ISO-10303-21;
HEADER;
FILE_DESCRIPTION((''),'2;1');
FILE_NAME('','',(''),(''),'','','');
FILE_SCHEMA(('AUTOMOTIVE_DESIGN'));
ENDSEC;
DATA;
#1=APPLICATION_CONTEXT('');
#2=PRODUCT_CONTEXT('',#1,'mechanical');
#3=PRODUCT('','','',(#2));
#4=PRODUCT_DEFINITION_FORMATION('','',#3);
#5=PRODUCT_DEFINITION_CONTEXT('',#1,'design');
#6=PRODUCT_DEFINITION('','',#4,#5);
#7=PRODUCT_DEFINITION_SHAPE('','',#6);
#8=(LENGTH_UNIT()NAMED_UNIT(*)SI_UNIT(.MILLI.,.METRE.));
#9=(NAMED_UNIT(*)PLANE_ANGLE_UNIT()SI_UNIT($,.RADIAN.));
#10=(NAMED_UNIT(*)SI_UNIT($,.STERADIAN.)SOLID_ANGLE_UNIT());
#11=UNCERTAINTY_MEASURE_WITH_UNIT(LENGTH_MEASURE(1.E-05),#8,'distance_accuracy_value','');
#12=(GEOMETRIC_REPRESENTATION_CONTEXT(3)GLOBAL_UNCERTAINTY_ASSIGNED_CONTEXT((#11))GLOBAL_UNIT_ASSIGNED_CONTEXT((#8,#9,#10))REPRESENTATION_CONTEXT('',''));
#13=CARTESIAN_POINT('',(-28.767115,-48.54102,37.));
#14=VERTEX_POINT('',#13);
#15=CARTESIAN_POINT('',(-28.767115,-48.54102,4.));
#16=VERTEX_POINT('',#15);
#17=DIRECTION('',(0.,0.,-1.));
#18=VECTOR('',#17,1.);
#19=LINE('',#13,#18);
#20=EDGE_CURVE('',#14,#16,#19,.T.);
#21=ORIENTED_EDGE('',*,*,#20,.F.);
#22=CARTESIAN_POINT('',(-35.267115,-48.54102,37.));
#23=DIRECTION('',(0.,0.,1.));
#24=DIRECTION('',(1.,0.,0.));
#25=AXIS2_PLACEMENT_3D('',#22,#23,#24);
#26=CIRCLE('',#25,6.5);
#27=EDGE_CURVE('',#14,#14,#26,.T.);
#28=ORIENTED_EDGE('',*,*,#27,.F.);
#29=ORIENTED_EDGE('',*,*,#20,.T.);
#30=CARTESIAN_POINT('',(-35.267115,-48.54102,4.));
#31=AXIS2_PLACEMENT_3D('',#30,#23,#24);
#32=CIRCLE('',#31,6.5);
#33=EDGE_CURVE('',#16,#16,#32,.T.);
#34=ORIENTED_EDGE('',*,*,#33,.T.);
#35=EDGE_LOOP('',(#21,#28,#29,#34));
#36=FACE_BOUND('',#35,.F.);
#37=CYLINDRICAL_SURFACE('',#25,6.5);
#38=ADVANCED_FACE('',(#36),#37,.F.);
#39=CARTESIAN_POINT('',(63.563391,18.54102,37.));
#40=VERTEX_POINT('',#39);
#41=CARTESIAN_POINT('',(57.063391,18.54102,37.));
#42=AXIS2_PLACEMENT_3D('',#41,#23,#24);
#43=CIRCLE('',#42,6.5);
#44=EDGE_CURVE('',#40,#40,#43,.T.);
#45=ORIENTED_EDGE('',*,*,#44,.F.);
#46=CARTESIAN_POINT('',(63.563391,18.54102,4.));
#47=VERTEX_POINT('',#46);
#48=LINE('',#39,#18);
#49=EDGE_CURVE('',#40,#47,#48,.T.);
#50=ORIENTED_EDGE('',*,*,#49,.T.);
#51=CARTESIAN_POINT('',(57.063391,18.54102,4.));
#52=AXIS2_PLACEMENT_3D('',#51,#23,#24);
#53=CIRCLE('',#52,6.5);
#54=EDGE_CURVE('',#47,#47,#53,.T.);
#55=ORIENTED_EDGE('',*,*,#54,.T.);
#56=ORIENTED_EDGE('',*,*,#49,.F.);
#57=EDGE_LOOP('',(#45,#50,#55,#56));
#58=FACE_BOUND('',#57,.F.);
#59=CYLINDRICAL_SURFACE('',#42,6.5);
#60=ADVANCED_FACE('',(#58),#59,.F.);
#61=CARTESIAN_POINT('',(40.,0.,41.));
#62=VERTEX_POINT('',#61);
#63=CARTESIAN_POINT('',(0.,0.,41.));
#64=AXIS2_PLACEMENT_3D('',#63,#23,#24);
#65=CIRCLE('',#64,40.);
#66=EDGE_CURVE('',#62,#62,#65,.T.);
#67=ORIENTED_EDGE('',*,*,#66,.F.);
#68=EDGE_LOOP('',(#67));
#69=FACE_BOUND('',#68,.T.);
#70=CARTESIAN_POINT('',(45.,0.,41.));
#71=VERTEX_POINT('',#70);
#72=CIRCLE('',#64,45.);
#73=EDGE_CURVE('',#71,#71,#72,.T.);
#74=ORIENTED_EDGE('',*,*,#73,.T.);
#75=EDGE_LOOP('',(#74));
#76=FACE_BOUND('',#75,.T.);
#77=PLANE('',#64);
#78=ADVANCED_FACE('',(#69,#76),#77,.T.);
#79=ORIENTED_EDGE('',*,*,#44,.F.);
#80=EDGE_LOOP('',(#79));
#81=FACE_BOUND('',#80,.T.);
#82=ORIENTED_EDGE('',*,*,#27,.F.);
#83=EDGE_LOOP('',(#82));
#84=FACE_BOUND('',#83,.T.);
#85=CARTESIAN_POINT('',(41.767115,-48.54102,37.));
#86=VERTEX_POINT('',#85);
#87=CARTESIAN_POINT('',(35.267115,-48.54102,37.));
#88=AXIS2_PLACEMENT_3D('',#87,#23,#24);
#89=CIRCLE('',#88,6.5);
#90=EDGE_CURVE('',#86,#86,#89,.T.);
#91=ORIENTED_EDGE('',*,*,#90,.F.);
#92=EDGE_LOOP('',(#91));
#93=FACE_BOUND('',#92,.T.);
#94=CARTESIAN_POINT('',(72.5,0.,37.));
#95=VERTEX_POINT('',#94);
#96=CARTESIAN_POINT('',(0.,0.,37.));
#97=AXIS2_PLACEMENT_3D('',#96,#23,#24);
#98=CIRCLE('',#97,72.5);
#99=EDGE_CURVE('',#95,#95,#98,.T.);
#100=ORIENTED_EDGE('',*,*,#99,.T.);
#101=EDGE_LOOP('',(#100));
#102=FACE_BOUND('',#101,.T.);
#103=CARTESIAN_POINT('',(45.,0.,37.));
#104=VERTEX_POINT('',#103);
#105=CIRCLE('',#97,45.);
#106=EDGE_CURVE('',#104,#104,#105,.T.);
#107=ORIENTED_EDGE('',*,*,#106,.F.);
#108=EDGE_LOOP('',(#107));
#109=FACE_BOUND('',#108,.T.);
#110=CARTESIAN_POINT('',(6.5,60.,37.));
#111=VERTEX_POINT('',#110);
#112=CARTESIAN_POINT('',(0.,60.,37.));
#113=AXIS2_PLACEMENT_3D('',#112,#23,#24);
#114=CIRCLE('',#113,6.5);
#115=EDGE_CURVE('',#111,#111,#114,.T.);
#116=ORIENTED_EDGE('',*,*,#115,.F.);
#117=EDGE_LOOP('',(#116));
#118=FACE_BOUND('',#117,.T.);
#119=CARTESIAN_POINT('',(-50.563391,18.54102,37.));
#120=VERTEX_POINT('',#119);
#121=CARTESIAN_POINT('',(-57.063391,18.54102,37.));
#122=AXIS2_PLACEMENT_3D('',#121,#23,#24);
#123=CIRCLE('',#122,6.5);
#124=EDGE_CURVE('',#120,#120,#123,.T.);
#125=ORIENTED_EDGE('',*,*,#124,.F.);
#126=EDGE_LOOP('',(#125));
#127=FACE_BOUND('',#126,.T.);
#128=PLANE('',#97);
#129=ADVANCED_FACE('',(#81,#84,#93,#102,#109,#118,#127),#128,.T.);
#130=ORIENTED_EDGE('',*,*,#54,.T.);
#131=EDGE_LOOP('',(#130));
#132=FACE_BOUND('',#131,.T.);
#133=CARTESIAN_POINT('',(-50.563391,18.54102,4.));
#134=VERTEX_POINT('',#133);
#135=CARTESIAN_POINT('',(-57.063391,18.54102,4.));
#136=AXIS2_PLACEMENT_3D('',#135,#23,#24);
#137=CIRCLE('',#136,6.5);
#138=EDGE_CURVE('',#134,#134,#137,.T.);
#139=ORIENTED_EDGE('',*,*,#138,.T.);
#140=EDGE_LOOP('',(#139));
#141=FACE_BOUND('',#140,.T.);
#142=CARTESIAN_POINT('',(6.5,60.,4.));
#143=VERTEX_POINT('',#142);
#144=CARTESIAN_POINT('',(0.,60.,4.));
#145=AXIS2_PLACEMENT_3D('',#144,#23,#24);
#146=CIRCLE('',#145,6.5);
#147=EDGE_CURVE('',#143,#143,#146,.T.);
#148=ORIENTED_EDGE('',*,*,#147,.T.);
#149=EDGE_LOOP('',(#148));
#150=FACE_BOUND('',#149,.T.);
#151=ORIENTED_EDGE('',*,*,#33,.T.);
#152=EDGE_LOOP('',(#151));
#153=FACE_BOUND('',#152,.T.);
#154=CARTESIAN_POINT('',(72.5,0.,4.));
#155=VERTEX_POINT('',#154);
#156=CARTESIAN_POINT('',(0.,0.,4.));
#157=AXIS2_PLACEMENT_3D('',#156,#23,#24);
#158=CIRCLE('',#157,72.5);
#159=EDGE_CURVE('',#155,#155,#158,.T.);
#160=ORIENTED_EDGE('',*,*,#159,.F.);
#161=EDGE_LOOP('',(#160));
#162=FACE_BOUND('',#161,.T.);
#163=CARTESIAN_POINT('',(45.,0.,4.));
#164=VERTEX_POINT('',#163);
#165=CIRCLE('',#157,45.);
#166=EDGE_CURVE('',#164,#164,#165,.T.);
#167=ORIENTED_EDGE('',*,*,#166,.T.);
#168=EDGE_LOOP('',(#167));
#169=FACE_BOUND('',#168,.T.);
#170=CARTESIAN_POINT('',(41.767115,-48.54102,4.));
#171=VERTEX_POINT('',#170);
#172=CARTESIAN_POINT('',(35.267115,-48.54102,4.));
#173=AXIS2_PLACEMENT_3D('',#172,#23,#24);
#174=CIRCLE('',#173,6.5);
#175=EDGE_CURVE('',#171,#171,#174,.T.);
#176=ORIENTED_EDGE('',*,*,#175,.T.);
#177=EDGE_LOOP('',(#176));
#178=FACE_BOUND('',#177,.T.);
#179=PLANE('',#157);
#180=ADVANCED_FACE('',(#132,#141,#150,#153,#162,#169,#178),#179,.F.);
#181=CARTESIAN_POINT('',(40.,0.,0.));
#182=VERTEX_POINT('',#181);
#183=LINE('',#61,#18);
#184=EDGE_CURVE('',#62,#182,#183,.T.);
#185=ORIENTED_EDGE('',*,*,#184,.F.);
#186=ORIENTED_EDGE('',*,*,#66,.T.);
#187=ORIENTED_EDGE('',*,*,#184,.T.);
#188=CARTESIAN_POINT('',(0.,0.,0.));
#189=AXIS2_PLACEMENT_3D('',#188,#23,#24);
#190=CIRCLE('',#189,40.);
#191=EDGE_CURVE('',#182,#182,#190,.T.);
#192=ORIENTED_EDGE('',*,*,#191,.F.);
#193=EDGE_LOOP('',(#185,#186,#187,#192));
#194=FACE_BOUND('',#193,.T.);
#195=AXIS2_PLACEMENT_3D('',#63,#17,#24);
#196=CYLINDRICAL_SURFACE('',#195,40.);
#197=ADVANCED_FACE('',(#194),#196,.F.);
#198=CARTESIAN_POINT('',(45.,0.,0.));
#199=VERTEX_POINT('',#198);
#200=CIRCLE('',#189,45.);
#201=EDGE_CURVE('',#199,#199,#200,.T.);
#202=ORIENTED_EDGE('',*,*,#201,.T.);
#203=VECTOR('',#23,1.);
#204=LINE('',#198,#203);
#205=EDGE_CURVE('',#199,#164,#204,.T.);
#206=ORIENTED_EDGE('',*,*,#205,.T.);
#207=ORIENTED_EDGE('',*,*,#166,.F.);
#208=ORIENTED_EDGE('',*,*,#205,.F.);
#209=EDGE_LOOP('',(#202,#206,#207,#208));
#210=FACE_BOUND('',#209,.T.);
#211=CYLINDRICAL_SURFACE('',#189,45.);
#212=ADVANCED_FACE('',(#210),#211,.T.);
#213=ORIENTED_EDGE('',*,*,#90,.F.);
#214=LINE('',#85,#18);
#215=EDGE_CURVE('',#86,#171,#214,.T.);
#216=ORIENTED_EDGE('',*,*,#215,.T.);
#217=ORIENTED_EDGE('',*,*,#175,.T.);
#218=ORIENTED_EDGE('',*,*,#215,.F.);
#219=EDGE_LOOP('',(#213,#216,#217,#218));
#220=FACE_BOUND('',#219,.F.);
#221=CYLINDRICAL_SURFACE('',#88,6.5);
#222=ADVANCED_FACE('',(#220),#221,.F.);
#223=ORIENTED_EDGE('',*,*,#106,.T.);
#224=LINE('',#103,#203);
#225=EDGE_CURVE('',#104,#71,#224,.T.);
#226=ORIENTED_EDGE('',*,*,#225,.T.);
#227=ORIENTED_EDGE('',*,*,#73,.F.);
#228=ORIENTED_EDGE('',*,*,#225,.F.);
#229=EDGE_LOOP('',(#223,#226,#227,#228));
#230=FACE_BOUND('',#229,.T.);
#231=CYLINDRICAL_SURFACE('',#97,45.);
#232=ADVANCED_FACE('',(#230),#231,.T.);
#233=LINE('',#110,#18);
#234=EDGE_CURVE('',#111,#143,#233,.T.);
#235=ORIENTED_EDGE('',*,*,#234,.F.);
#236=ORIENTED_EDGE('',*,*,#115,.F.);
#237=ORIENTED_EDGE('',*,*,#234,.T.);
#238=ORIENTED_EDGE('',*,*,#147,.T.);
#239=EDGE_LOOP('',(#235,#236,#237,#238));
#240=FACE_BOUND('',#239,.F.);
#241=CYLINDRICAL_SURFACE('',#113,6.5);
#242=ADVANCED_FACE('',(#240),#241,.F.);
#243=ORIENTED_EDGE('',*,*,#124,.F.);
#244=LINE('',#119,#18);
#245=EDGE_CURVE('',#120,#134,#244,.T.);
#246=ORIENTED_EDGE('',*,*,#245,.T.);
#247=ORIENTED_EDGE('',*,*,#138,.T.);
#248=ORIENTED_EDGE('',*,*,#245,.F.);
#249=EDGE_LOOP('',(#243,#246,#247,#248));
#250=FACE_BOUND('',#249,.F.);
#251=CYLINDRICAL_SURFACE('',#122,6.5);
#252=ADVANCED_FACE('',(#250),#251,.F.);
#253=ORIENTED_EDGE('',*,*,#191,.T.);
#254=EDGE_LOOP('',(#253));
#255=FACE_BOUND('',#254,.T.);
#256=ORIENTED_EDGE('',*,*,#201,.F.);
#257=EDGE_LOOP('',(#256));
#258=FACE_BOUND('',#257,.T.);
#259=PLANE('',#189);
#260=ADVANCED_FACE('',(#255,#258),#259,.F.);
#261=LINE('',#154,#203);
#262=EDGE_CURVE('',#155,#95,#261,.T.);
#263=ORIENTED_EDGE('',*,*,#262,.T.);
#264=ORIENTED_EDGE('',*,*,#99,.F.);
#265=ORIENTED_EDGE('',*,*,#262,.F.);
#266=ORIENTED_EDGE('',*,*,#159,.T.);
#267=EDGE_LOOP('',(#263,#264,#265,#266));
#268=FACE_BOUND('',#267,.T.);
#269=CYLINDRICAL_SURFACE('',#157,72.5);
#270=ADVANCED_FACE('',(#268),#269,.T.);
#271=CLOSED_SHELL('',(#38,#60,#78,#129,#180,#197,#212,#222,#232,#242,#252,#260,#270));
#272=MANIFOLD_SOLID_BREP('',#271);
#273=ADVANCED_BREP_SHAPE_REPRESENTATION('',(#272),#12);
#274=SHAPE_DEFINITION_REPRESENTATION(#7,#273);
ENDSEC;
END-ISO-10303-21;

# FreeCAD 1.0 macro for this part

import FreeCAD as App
import Part
import Sketcher

V = App.Vector
Q = App.Units.Quantity

doc = App.newDocument("Part")
body = doc.addObject("PartDesign::Body", "Body")

# Sketch on XZ plane
sketch1 = body.newObject("Sketcher::SketchObject", "Sketch")
sketch1.AttachmentSupport = (doc.getObject("XZ_Plane"), [""])
sketch1.MapMode = "FlatFace"
sketch1.addGeometry([
    Part.LineSegment(V(40, 41, 0), V(40, 0, 0)),  # 0
    Part.LineSegment(V(40, 0, 0), V(45, 0, 0)),  # 1
    Part.LineSegment(V(45, 0, 0), V(45, 4, 0)),  # 2
    Part.LineSegment(V(45, 4, 0), V(72.5, 4, 0)),  # 3
    Part.LineSegment(V(72.5, 4, 0), V(72.5, 37, 0)),  # 4
    Part.LineSegment(V(72.5, 37, 0), V(45, 37, 0)),  # 5
    Part.LineSegment(V(45, 37, 0), V(45, 41, 0)),  # 6
    Part.LineSegment(V(45, 41, 0), V(40, 41, 0)),  # 7
], False)
sketch1.addConstraint([
    Sketcher.Constraint("Coincident", 0, 2, 1, 1),
    Sketcher.Constraint("Coincident", 1, 2, 2, 1),
    Sketcher.Constraint("Coincident", 2, 2, 3, 1),
    Sketcher.Constraint("Coincident", 3, 2, 4, 1),
    Sketcher.Constraint("Coincident", 4, 2, 5, 1),
    Sketcher.Constraint("Coincident", 5, 2, 6, 1),
    Sketcher.Constraint("Coincident", 6, 2, 7, 1),
    Sketcher.Constraint("Coincident", 7, 2, 0, 1),
    Sketcher.Constraint("Vertical", 0),
    Sketcher.Constraint("Horizontal", 1),
    Sketcher.Constraint("Vertical", 2),
    Sketcher.Constraint("Horizontal", 3),
    Sketcher.Constraint("Vertical", 4),
    Sketcher.Constraint("Horizontal", 5),
    Sketcher.Constraint("Vertical", 6),
    Sketcher.Constraint("Horizontal", 7),
    Sketcher.Constraint("PointOnObject", 0, 2, -1),
    Sketcher.Constraint("Vertical", 2, 2, 5, 2),
    Sketcher.Constraint("Equal", 2, 6),
    Sketcher.Constraint("DistanceX", 1, 1, 1, 2, Q("5 mm")),
    Sketcher.Constraint("DistanceY", 0, 2, 0, 1, Q("41 mm")),
    Sketcher.Constraint("DistanceY", 2, 1, 2, 2, Q("4 mm")),
    Sketcher.Constraint("DistanceX", 3, 1, 3, 2, Q("27.5 mm")),
    Sketcher.Constraint("DistanceX", -1, 1, 0, 2, Q("40 mm")),
])
revolution = body.newObject("PartDesign::Revolution", "Revolution")
revolution.Profile = sketch1
revolution.ReferenceAxis = (sketch1, ["V_Axis"])
revolution.Angle = 360

# Sketch on XY plane
sketch2 = body.newObject("Sketcher::SketchObject", "Sketch001")
sketch2.AttachmentSupport = (doc.getObject("XY_Plane"), [""])
sketch2.MapMode = "FlatFace"
sketch2.AttachmentOffset = App.Placement(V(0, 0, 37), App.Rotation())
sketch2.addGeometry([
    Part.Circle(V(0, 60, 0), V(0, 0, 1), 6),  # 0
    Part.Circle(V(-57, 19, 0), V(0, 0, 1), 6),  # 1
    Part.Circle(V(-35, -49, 0), V(0, 0, 1), 6),  # 2
    Part.Circle(V(35, -49, 0), V(0, 0, 1), 6),  # 3
    Part.Circle(V(57, 19, 0), V(0, 0, 1), 6),  # 4
], False)
sketch2.addConstraint([
    Sketcher.Constraint("Equal", 0, 1),
    Sketcher.Constraint("Equal", 1, 2),
    Sketcher.Constraint("Equal", 2, 3),
    Sketcher.Constraint("Equal", 3, 4),
    Sketcher.Constraint("Symmetric", 2, 3, 3, 3, -2),
    Sketcher.Constraint("Symmetric", 1, 3, 4, 3, -2),
    Sketcher.Constraint("PointOnObject", 0, 3, -2),
    Sketcher.Constraint("Diameter", 0, Q("13 mm")),
    Sketcher.Constraint("DistanceY", -1, 1, 0, 3, Q("60 mm")),
    Sketcher.Constraint("DistanceX", 1, 3, -1, 1, Q("57.063391 mm")),
    Sketcher.Constraint("DistanceY", -1, 1, 1, 3, Q("18.54102 mm")),
    Sketcher.Constraint("DistanceY", 2, 3, -1, 1, Q("48.54102 mm")),
    Sketcher.Constraint("DistanceX", 2, 3, 3, 3, Q("70.53423 mm")),
])
pocket1 = body.newObject("PartDesign::Pocket", "Pocket")
pocket1.Profile = sketch2
pocket1.Type = "ThroughAll"

doc.recompute()
